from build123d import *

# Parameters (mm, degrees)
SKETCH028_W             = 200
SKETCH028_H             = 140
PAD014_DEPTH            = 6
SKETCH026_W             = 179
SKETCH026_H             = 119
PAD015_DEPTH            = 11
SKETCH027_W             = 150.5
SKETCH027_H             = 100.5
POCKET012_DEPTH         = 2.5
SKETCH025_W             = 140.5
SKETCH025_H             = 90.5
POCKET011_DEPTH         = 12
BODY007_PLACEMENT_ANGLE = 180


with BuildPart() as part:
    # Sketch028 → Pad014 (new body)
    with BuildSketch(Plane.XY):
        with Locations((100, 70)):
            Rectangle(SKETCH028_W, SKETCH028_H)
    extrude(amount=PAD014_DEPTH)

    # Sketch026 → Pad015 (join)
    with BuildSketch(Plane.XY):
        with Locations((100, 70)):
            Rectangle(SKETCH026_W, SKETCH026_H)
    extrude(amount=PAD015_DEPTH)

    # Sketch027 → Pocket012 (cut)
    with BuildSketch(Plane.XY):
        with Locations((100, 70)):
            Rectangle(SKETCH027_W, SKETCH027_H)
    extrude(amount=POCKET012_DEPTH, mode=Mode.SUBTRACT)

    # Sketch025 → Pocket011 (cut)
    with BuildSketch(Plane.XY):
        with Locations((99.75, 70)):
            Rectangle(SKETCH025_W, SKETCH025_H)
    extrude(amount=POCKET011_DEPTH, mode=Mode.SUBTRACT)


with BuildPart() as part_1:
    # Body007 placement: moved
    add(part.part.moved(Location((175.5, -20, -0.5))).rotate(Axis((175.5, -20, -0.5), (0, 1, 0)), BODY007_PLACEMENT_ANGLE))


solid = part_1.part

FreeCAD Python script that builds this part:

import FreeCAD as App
import Part
import Sketcher

V = App.Vector
Q = App.Units.Quantity


def add_polygon(sketch, points):
    """Adds a closed chain of lines whose ends are joined by coincident constraints."""
    first, n = sketch.GeometryCount, len(points)
    for a, b in zip(points, points[1:] + points[:1]):
        sketch.addGeometry(Part.LineSegment(App.Vector(*a, 0), App.Vector(*b, 0)), False)
    for i in range(n):
        sketch.addConstraint(Sketcher.Constraint("Coincident", first + i, 2, first + (i + 1) % n, 1))

doc = App.newDocument("Part")
body = doc.addObject("PartDesign::Body", "Body")

sketch1 = doc.addObject("Sketcher::SketchObject", "Sketch")
body.addObject(sketch1)
sketch1.AttachmentSupport = (doc.XY_Plane, [""])
sketch1.MapMode = "FlatFace"
add_polygon(sketch1, [(0, 140), (0, 0), (200, 0), (200, 140)])
sketch1.addConstraint([
    Sketcher.Constraint("Vertical", 0),
    Sketcher.Constraint("Horizontal", 1),
    Sketcher.Constraint("Vertical", 2),
    Sketcher.Constraint("Horizontal", 3),
    Sketcher.Constraint("Coincident", 0, 2, -1, 1),
    Sketcher.Constraint("DistanceX", 1, 1, 1, 2, Q("200 mm")),
    Sketcher.Constraint("DistanceY", 0, 2, 0, 1, Q("140 mm")),
])
pad1 = doc.addObject("PartDesign::Pad", "Pad")
body.addObject(pad1)
pad1.Profile = sketch1
pad1.Length = 6

sketch2 = doc.addObject("Sketcher::SketchObject", "Sketch001")
body.addObject(sketch2)
sketch2.AttachmentSupport = (doc.XY_Plane, [""])
sketch2.MapMode = "FlatFace"
add_polygon(sketch2, [(10.5, 129.5), (10.5, 10.5), (189.5, 10.5), (189.5, 129.5)])
sketch2.addConstraint([
    Sketcher.Constraint("Vertical", 0),
    Sketcher.Constraint("Horizontal", 1),
    Sketcher.Constraint("Vertical", 2),
    Sketcher.Constraint("Horizontal", 3),
    Sketcher.Constraint("DistanceX", 1, 1, 1, 2, Q("179 mm")),
    Sketcher.Constraint("DistanceY", 0, 2, 0, 1, Q("119 mm")),
    Sketcher.Constraint("DistanceX", -1, 1, 0, 2, Q("10.5 mm")),
    Sketcher.Constraint("DistanceY", -1, 1, 0, 2, Q("10.5 mm")),
])
pad2 = doc.addObject("PartDesign::Pad", "Pad001")
body.addObject(pad2)
pad2.Profile = sketch2
pad2.Length = 11

sketch3 = doc.addObject("Sketcher::SketchObject", "Sketch002")
body.addObject(sketch3)
sketch3.AttachmentSupport = (doc.XY_Plane, [""])
sketch3.MapMode = "FlatFace"
add_polygon(sketch3, [(24.75, 120.25), (24.75, 19.75), (175.25, 19.75), (175.25, 120.25)])
sketch3.addConstraint([
    Sketcher.Constraint("Vertical", 0),
    Sketcher.Constraint("Horizontal", 1),
    Sketcher.Constraint("Vertical", 2),
    Sketcher.Constraint("Horizontal", 3),
    Sketcher.Constraint("DistanceX", 1, 1, 1, 2, Q("150.5 mm")),
    Sketcher.Constraint("DistanceY", 0, 2, 0, 1, Q("100.5 mm")),
    Sketcher.Constraint("DistanceX", -1, 1, 0, 2, Q("24.75 mm")),
    Sketcher.Constraint("DistanceY", -1, 1, 0, 2, Q("19.75 mm")),
])
pocket1 = doc.addObject("PartDesign::Pocket", "Pocket")
body.addObject(pocket1)
pocket1.Profile = sketch3
pocket1.Length = 2.5
pocket1.Reversed = True

sketch4 = doc.addObject("Sketcher::SketchObject", "Sketch003")
body.addObject(sketch4)
sketch4.AttachmentSupport = (doc.XY_Plane, [""])
sketch4.MapMode = "FlatFace"
add_polygon(sketch4, [(29.5, 115.25), (29.5, 24.75), (170, 24.75), (170, 115.25)])
sketch4.addConstraint([
    Sketcher.Constraint("Vertical", 0),
    Sketcher.Constraint("Horizontal", 1),
    Sketcher.Constraint("Vertical", 2),
    Sketcher.Constraint("Horizontal", 3),
    Sketcher.Constraint("DistanceX", 1, 1, 1, 2, Q("140.5 mm")),
    Sketcher.Constraint("DistanceY", 0, 2, 0, 1, Q("90.5 mm")),
    Sketcher.Constraint("DistanceX", -1, 1, 1, 2, Q("170 mm")),
    Sketcher.Constraint("DistanceY", -1, 1, 0, 2, Q("24.75 mm")),
])
pocket2 = doc.addObject("PartDesign::Pocket", "Pocket001")
body.addObject(pocket2)
pocket2.Profile = sketch4
pocket2.Length = 12
pocket2.Reversed = True
body2 = doc.addObject("PartDesign::Body", "Body001")
doc.recompute()

body.Placement = App.Placement(V(175.5, -20, -0.5), App.Rotation(V(0, 1, 0), 180))
boolean = doc.addObject("PartDesign::Boolean", "Boolean")
body2.addObject(boolean)
boolean.Type = "Fuse"
boolean.addObjects([body])

doc.recompute()
